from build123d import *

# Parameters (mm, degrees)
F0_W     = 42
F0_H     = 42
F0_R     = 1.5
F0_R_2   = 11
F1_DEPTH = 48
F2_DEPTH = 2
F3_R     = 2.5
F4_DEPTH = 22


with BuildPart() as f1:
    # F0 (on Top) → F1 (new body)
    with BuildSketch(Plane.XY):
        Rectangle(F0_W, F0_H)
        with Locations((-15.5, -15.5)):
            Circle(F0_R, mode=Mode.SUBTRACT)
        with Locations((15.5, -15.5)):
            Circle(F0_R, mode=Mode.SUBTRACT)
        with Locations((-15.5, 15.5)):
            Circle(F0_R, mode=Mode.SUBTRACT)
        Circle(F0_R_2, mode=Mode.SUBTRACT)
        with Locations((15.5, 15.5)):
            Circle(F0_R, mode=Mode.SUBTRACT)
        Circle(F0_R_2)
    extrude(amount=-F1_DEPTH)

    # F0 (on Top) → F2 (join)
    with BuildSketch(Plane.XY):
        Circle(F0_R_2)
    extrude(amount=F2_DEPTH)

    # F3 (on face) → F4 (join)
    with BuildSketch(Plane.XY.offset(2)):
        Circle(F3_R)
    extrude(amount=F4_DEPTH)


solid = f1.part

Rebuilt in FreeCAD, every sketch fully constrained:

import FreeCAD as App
import Part
import Sketcher

doc = App.newDocument("Part")
params = doc.addObject("Spreadsheet::Sheet", "Params")
for row, (alias, value) in enumerate([
    ("sketch1_diameter", "3 mm"),
    ("sketch1_width", "42 mm"),
    ("pad1_length", "48 mm"),
    ("sketch2_diameter", "22 mm"),
    ("pad2_length", "2 mm"),
    ("sketch3_diameter", "5 mm"),
    ("pad3_length", "22 mm"),
], start=1):
    params.set(f"A{row}", alias)
    params.set(f"B{row}", "=" + value)
    params.setAlias(f"B{row}", alias)

body = doc.addObject("PartDesign::Body", "Body")

# Sketch on XY plane
sketch1 = doc.addObject("Sketcher::SketchObject", "Sketch")
body.addObject(sketch1)
sketch1.AttachmentSupport = (doc.XY_Plane, [""])
sketch1.MapMode = "FlatFace"
sketch1.addGeometry(Part.LineSegment(App.Vector(-21, 21, 0), App.Vector(-21, -21, 0)), False)
sketch1.addGeometry(Part.LineSegment(App.Vector(-21, -21, 0), App.Vector(21, -21, 0)), False)
sketch1.addGeometry(Part.LineSegment(App.Vector(21, -21, 0), App.Vector(21, 21, 0)), False)
sketch1.addGeometry(Part.LineSegment(App.Vector(21, 21, 0), App.Vector(-21, 21, 0)), False)
sketch1.addGeometry(Part.Circle(App.Vector(-15.5, -15.5, 0), App.Vector(0, 0, 1), 1.5), False)
sketch1.addGeometry(Part.Circle(App.Vector(15.5, -15.5, 0), App.Vector(0, 0, 1), 1.5), False)
sketch1.addGeometry(Part.Circle(App.Vector(-15.5, 15.5, 0), App.Vector(0, 0, 1), 1.5), False)
sketch1.addGeometry(Part.Circle(App.Vector(15.5, 15.5, 0), App.Vector(0, 0, 1), 1.5), False)
sketch1.addConstraint(Sketcher.Constraint("Coincident", 0, 2, 1, 1))
sketch1.addConstraint(Sketcher.Constraint("Coincident", 1, 2, 2, 1))
sketch1.addConstraint(Sketcher.Constraint("Coincident", 2, 2, 3, 1))
sketch1.addConstraint(Sketcher.Constraint("Coincident", 3, 2, 0, 1))
sketch1.addConstraint(Sketcher.Constraint("Vertical", 0))
sketch1.addConstraint(Sketcher.Constraint("Horizontal", 1))
sketch1.addConstraint(Sketcher.Constraint("Vertical", 2))
sketch1.addConstraint(Sketcher.Constraint("Horizontal", 3))
sketch1.addConstraint(Sketcher.Constraint("Equal", 4, 5))
sketch1.addConstraint(Sketcher.Constraint("Equal", 5, 6))
sketch1.addConstraint(Sketcher.Constraint("Equal", 6, 7))
sketch1.addConstraint(Sketcher.Constraint("Symmetric", 5, 3, 6, 3, -1, 1))
sketch1.addConstraint(Sketcher.Constraint("Symmetric", 4, 3, 7, 3, -1, 1))
sketch1.addConstraint(Sketcher.Constraint("Symmetric", 0, 2, 2, 2, -1, 1))
sketch1.addConstraint(Sketcher.Constraint("Symmetric", 4, 3, 5, 3, -2))
sketch1.addConstraint(Sketcher.Constraint("Equal", 3, 0))
sketch1.addConstraint(Sketcher.Constraint("Diameter", 4, 3.0))
sketch1.addConstraint(Sketcher.Constraint("DistanceX", 1, 1, 1, 2, 42.0))
sketch1.addConstraint(Sketcher.Constraint("DistanceX", 4, 3, 5, 3, 31.0))
sketch1.addConstraint(Sketcher.Constraint("DistanceY", 4, 3, 6, 3, 31.0))
sketch1.setExpression("Constraints[16]", "Params.sketch1_diameter")
sketch1.setExpression("Constraints[17]", "Params.sketch1_width")
pad1 = doc.addObject("PartDesign::Pad", "Pad")
body.addObject(pad1)
pad1.Profile = sketch1
pad1.setExpression("Length", "Params.pad1_length")
pad1.Reversed = True

# Sketch on XY plane
sketch2 = doc.addObject("Sketcher::SketchObject", "Sketch001")
body.addObject(sketch2)
sketch2.AttachmentSupport = (doc.XY_Plane, [""])
sketch2.MapMode = "FlatFace"
sketch2.addGeometry(Part.Circle(App.Vector(0, 0, 0), App.Vector(0, 0, 1), 11), False)
sketch2.addConstraint(Sketcher.Constraint("Coincident", 0, 3, -1, 1))
sketch2.addConstraint(Sketcher.Constraint("Diameter", 0, 22.0))
sketch2.setExpression("Constraints[1]", "Params.sketch2_diameter")
pad2 = doc.addObject("PartDesign::Pad", "Pad001")
body.addObject(pad2)
pad2.Profile = sketch2
pad2.setExpression("Length", "Params.pad2_length")

# Sketch on XY plane
sketch3 = doc.addObject("Sketcher::SketchObject", "Sketch002")
body.addObject(sketch3)
sketch3.AttachmentSupport = (doc.XY_Plane, [""])
sketch3.MapMode = "FlatFace"
sketch3.AttachmentOffset = App.Placement(App.Vector(0, 0, 2), App.Rotation())
sketch3.addGeometry(Part.Circle(App.Vector(0, 0, 0), App.Vector(0, 0, 1), 2.5), False)
sketch3.addConstraint(Sketcher.Constraint("Coincident", 0, 3, -1, 1))
sketch3.addConstraint(Sketcher.Constraint("Diameter", 0, 5.0))
sketch3.setExpression("Constraints[1]", "Params.sketch3_diameter")
pad3 = doc.addObject("PartDesign::Pad", "Pad002")
body.addObject(pad3)
pad3.Profile = sketch3
pad3.setExpression("Length", "Params.pad3_length")

doc.recompute()
